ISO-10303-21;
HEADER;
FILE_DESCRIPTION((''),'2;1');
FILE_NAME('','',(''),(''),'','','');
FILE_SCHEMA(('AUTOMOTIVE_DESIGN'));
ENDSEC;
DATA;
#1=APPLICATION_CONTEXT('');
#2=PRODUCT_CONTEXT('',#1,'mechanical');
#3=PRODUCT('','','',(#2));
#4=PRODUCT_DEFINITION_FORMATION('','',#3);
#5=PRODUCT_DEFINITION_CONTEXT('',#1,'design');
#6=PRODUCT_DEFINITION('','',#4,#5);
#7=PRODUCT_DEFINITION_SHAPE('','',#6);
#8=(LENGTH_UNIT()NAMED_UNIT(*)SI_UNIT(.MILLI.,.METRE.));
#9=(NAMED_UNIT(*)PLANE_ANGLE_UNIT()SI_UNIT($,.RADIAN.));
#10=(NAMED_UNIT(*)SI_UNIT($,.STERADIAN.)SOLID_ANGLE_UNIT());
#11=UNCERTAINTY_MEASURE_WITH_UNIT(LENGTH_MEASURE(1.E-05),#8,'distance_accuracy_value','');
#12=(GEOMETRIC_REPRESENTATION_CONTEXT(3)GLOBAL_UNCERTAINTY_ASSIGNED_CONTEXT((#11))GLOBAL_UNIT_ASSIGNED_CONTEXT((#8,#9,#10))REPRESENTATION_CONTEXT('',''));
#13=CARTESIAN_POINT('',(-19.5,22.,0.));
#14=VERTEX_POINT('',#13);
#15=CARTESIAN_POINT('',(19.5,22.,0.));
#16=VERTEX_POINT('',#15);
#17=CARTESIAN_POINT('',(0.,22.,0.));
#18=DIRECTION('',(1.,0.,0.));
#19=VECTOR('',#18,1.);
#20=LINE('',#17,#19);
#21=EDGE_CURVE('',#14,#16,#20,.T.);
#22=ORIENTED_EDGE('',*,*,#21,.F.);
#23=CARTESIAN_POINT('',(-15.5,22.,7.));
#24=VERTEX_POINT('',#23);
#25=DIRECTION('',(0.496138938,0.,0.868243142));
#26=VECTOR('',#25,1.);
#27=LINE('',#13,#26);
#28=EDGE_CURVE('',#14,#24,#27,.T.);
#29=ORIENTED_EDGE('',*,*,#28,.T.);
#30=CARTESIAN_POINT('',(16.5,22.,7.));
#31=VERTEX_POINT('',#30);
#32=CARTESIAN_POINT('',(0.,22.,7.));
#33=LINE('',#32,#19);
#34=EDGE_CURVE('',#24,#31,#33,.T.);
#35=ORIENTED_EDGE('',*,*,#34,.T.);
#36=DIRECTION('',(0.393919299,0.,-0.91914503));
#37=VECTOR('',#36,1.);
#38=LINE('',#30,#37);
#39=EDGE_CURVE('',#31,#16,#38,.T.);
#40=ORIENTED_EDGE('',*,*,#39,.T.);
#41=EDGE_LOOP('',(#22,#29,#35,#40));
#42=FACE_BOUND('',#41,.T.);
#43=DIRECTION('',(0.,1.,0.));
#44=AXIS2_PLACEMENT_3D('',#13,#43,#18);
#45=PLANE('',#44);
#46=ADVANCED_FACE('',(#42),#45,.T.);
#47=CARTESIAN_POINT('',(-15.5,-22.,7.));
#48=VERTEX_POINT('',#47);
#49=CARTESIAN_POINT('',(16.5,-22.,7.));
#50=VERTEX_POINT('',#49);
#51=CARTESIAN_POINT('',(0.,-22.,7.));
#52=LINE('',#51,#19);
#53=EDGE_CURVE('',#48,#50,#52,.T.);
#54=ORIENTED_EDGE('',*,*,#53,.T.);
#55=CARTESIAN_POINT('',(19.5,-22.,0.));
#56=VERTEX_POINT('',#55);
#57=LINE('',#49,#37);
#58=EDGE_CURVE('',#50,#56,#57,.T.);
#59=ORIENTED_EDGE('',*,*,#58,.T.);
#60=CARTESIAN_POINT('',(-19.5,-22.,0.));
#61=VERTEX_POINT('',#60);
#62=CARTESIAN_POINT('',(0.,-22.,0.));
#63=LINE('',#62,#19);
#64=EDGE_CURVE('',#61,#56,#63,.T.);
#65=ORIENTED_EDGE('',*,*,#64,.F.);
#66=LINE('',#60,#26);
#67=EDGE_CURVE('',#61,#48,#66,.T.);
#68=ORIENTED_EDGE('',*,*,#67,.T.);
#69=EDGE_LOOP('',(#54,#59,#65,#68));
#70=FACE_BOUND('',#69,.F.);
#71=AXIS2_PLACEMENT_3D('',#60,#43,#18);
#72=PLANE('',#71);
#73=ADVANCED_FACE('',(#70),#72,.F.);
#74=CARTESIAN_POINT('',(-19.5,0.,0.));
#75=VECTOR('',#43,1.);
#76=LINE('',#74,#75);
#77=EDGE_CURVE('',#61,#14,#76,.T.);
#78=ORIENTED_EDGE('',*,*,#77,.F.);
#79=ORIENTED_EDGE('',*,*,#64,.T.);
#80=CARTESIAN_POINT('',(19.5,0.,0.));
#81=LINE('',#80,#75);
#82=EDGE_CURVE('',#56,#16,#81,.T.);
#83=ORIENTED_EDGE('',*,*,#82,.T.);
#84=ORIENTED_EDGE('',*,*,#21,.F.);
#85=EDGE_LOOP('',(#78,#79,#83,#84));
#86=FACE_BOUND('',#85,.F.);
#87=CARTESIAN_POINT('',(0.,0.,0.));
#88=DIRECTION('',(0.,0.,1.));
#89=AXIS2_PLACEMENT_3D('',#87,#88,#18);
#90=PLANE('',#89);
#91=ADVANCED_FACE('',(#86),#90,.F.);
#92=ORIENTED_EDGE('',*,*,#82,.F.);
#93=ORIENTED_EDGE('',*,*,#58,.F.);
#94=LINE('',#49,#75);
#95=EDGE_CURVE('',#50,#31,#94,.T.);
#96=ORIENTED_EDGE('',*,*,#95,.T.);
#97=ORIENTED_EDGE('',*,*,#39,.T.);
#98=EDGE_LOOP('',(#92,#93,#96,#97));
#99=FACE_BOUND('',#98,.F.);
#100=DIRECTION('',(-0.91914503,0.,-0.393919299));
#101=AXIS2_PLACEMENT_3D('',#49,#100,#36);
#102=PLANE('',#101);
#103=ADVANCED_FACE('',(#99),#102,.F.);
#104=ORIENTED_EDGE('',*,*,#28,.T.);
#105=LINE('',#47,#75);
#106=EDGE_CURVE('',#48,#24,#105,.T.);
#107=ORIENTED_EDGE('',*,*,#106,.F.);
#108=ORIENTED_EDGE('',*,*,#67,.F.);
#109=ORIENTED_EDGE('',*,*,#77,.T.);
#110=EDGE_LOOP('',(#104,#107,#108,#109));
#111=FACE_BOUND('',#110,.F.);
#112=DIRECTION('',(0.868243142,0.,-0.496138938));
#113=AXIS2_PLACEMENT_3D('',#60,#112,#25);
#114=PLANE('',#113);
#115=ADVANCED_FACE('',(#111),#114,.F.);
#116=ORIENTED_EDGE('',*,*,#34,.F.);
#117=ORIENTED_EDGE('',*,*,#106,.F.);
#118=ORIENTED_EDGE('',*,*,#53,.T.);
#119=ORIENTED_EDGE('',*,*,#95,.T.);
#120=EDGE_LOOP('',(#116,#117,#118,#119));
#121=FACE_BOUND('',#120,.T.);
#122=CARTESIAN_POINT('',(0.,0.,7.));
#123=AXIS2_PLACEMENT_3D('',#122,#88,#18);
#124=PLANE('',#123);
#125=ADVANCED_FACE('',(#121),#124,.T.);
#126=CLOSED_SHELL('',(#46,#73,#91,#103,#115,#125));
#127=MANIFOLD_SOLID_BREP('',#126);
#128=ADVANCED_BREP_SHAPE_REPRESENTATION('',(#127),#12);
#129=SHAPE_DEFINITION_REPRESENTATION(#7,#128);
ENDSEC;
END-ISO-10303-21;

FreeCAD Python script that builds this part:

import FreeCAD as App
import Part
import Sketcher
Q = App.Units.Quantity

doc = App.newDocument("Part")
body = doc.addObject("PartDesign::Body", "Body")

# Sketch on XY plane
sketch1 = doc.addObject("Sketcher::SketchObject", "Sketch")
body.addObject(sketch1)
sketch1.AttachmentSupport = (doc.XY_Plane, [""])
sketch1.MapMode = "FlatFace"
sketch1.addGeometry([
    Part.LineSegment(App.Vector(-19.5, 22, 0), App.Vector(-19.5, -22, 0)),
    Part.LineSegment(App.Vector(-19.5, -22, 0), App.Vector(19.5, -22, 0)),
    Part.LineSegment(App.Vector(19.5, -22, 0), App.Vector(19.5, 22, 0)),
    Part.LineSegment(App.Vector(19.5, 22, 0), App.Vector(-19.5, 22, 0)),
], False)
sketch1.addConstraint([
    Sketcher.Constraint("Coincident", 0, 2, 1, 1),
    Sketcher.Constraint("Coincident", 1, 2, 2, 1),
    Sketcher.Constraint("Coincident", 2, 2, 3, 1),
    Sketcher.Constraint("Coincident", 3, 2, 0, 1),
    Sketcher.Constraint("Vertical", 0),
    Sketcher.Constraint("Horizontal", 1),
    Sketcher.Constraint("Vertical", 2),
    Sketcher.Constraint("Horizontal", 3),
    Sketcher.Constraint("Symmetric", 0, 2, 2, 2, -1, 1),
    Sketcher.Constraint("DistanceX", 1, 1, 1, 2, Q("39 mm")),
    Sketcher.Constraint("DistanceY", 0, 2, 0, 1, Q("44 mm")),
])
pad1 = doc.addObject("PartDesign::Pad", "Pad")
body.addObject(pad1)
pad1.Profile = sketch1
pad1.Length = 7

# Sketch on XZ plane
sketch2 = doc.addObject("Sketcher::SketchObject", "Sketch001")
body.addObject(sketch2)
sketch2.AttachmentSupport = (doc.XZ_Plane, [""])
sketch2.MapMode = "FlatFace"
sketch2.AttachmentOffset = App.Placement(App.Vector(0, 0, 22), App.Rotation())
sketch2.addGeometry([
    Part.LineSegment(App.Vector(-19.5, 7, 0), App.Vector(-19.5, 0, 0)),  # 0
    Part.LineSegment(App.Vector(-19.5, 0, 0), App.Vector(-15.5, 7, 0)),  # 1
    Part.LineSegment(App.Vector(-15.5, 7, 0), App.Vector(-19.5, 7, 0)),  # 2
    Part.LineSegment(App.Vector(16.5, 7, 0), App.Vector(19.5, 0, 0)),  # 3
    Part.LineSegment(App.Vector(19.5, 0, 0), App.Vector(19.5, 7, 0)),  # 4
    Part.LineSegment(App.Vector(19.5, 7, 0), App.Vector(16.5, 7, 0)),  # 5
], False)
sketch2.addConstraint([
    Sketcher.Constraint("Coincident", 0, 2, 1, 1),
    Sketcher.Constraint("Coincident", 1, 2, 2, 1),
    Sketcher.Constraint("Coincident", 2, 2, 0, 1),
    Sketcher.Constraint("Coincident", 3, 2, 4, 1),
    Sketcher.Constraint("Coincident", 4, 2, 5, 1),
    Sketcher.Constraint("Coincident", 5, 2, 3, 1),
    Sketcher.Constraint("Vertical", 0),
    Sketcher.Constraint("Horizontal", 2),
    Sketcher.Constraint("Vertical", 4),
    Sketcher.Constraint("Horizontal", 5),
    Sketcher.Constraint("Symmetric", 0, 2, 3, 2, -1, 1),
    Sketcher.Constraint("PointOnObject", 0, 2, -1),
    Sketcher.Constraint("Horizontal", 2, 2, 4, 2),
    Sketcher.Constraint("DistanceX", 2, 2, 2, 1, Q("4 mm")),
    Sketcher.Constraint("DistanceX", 5, 2, 5, 1, Q("3 mm")),
    Sketcher.Constraint("DistanceY", 0, 2, 0, 1, Q("7 mm")),
    Sketcher.Constraint("DistanceX", 1, 2, 3, 2, Q("35 mm")),
])
pocket1 = doc.addObject("PartDesign::Pocket", "Pocket")
body.addObject(pocket1)
pocket1.Profile = sketch2
pocket1.Length = 44

doc.recompute()
